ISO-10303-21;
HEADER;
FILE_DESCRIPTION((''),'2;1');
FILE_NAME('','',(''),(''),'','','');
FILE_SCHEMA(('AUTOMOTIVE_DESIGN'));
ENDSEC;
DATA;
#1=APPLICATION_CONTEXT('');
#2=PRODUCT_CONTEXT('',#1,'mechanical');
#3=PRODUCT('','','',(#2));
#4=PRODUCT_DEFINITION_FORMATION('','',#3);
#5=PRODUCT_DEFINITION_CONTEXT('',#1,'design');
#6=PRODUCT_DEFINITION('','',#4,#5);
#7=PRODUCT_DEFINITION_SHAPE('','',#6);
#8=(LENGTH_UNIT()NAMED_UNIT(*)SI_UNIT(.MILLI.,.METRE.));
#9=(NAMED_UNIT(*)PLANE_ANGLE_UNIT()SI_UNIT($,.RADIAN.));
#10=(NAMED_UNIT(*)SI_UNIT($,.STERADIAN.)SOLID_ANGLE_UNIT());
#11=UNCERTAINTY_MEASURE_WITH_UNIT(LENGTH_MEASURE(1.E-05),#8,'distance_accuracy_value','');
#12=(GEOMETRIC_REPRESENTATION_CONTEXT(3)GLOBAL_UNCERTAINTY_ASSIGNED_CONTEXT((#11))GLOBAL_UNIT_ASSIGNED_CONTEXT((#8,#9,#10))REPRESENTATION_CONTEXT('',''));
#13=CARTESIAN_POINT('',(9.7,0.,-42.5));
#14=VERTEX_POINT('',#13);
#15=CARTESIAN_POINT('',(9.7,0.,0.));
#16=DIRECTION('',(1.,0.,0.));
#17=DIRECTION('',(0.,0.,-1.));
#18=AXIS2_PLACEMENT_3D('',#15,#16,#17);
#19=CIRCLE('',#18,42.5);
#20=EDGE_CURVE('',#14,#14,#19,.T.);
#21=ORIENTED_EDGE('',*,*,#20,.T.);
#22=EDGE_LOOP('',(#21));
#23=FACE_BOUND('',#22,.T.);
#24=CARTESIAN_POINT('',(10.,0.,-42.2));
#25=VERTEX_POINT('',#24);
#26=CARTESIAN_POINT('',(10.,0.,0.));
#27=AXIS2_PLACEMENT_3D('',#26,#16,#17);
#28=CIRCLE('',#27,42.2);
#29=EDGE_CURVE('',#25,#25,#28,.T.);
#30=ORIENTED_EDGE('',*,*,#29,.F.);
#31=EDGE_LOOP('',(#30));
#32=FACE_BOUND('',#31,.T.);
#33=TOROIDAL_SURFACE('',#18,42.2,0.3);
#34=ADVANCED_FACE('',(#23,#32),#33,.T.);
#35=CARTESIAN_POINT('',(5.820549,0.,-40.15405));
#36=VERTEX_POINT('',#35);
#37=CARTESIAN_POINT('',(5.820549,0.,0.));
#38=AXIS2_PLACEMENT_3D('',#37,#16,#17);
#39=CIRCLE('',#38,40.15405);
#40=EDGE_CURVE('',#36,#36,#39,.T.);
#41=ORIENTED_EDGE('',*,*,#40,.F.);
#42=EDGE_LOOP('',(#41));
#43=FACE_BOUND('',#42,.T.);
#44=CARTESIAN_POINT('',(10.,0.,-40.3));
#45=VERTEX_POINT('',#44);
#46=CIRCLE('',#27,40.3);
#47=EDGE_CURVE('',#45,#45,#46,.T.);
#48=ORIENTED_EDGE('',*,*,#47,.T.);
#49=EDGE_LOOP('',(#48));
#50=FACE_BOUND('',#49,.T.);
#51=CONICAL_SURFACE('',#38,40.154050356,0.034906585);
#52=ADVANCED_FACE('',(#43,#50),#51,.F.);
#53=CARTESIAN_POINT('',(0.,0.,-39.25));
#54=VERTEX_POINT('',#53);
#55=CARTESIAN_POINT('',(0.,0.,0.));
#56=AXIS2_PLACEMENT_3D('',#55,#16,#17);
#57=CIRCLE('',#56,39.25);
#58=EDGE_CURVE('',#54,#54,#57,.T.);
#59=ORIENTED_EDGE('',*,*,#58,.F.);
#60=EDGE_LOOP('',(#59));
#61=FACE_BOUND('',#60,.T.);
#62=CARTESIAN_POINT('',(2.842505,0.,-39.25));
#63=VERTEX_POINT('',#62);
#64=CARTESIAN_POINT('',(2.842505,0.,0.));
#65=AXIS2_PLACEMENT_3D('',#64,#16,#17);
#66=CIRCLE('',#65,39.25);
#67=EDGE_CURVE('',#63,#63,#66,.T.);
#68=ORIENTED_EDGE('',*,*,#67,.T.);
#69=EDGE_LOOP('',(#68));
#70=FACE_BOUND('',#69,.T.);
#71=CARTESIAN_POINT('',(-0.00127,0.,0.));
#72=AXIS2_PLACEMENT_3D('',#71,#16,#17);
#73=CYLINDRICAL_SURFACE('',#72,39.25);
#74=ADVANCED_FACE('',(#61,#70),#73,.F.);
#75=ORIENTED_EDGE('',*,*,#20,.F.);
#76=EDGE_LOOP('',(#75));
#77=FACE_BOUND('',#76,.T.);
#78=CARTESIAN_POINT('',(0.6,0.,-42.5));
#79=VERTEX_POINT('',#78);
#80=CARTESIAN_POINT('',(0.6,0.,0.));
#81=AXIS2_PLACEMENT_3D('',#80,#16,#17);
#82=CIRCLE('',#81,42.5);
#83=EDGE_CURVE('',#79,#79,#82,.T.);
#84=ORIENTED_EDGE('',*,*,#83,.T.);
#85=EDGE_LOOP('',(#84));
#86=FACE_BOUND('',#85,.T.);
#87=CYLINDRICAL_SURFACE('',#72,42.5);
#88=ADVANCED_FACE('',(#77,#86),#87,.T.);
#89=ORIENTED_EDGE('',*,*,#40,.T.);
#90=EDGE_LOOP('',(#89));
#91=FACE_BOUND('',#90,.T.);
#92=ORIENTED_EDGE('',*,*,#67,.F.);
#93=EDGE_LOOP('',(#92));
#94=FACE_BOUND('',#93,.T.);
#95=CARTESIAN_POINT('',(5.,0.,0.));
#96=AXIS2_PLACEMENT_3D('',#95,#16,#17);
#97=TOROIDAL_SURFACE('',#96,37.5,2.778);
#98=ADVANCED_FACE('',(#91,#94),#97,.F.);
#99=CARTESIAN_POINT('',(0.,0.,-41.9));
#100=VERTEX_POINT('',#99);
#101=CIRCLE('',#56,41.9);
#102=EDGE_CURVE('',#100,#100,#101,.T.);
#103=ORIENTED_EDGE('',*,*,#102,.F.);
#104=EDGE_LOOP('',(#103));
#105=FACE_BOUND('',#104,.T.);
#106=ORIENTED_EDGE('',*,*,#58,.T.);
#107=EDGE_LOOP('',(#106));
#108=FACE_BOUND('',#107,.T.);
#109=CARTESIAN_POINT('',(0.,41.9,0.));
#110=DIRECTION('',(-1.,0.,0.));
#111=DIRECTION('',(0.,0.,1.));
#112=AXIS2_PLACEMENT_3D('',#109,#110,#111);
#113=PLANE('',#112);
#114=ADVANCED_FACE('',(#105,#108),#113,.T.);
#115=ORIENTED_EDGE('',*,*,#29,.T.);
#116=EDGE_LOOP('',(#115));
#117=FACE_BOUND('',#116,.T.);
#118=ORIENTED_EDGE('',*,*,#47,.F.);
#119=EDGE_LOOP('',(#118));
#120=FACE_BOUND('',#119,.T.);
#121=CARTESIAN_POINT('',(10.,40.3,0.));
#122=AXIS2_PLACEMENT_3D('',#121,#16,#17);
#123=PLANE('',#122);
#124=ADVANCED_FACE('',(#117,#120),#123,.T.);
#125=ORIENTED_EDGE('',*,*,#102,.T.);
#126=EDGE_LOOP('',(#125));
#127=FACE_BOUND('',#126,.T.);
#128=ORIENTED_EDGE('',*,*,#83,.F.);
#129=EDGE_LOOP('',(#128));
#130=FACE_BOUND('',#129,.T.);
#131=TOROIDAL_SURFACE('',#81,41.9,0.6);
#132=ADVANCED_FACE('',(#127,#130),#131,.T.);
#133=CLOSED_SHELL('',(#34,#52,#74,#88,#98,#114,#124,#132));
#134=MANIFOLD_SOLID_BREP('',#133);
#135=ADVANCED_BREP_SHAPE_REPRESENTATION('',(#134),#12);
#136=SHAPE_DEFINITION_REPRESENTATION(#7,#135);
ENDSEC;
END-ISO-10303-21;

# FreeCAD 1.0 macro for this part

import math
import FreeCAD as App
import Part
import Sketcher

V = App.Vector
Q = App.Units.Quantity

doc = App.newDocument("Part")
body = doc.addObject("PartDesign::Body", "Body")

sketch1 = body.newObject("Sketcher::SketchObject", "Sketch")
sketch1.AttachmentSupport = (doc.getObject("XY_Plane"), [""])
sketch1.MapMode = "FlatFace"
sketch1.addGeometry(Part.LineSegment(V(9.7, 42.5, 0), V(0.6, 42.5, 0)), False)
sketch1.addGeometry(Part.ArcOfCircle(Part.Circle(V(0.6, 41.9, 0), V(0, 0, 1), 0.6), math.radians(90), math.radians(180)), False)
sketch1.addGeometry(Part.LineSegment(V(0, 41.9, 0), V(0, 39.25, 0)), False)
sketch1.addGeometry(Part.LineSegment(V(0, 39.25, 0), V(2.84, 39.25, 0)), False)
sketch1.addGeometry(Part.ArcOfCircle(Part.Circle(V(5, 37.5, 0), V(0, 0, 1), 2.78), math.radians(73), math.radians(141)), False)
sketch1.addGeometry(Part.LineSegment(V(5.82, 40.15, 0), V(10, 40.3, 0)), False)
sketch1.addGeometry(Part.LineSegment(V(10, 40.3, 0), V(10, 42.2, 0)), False)
sketch1.addGeometry(Part.ArcOfCircle(Part.Circle(V(9.7, 42.2, 0), V(0, 0, 1), 0.3), math.radians(0), math.radians(90)), False)
sketch1.addConstraint(Sketcher.Constraint("Tangent", 0, 2, 1, 1))
sketch1.addConstraint(Sketcher.Constraint("Tangent", 1, 2, 2, 1))
sketch1.addConstraint(Sketcher.Constraint("Coincident", 2, 2, 3, 1))
sketch1.addConstraint(Sketcher.Constraint("Coincident", 3, 2, 4, 2))
sketch1.addConstraint(Sketcher.Constraint("Coincident", 4, 1, 5, 1))
sketch1.addConstraint(Sketcher.Constraint("Coincident", 5, 2, 6, 1))
sketch1.addConstraint(Sketcher.Constraint("Tangent", 6, 2, 7, 1))
sketch1.addConstraint(Sketcher.Constraint("Tangent", 7, 2, 0, 1))
sketch1.addConstraint(Sketcher.Constraint("Horizontal", 0))
sketch1.addConstraint(Sketcher.Constraint("Vertical", 2))
sketch1.addConstraint(Sketcher.Constraint("Horizontal", 3))
sketch1.addConstraint(Sketcher.Constraint("Vertical", 6))
sketch1.addConstraint(Sketcher.Constraint("PointOnObject", 1, 2, -2))
sketch1.addConstraint(Sketcher.Constraint("Radius", 1, Q("0.6 mm")))
sketch1.addConstraint(Sketcher.Constraint("Radius", 7, Q("0.3 mm")))
sketch1.addConstraint(Sketcher.Constraint("Angle", 5, Q("2 deg")))
sketch1.addConstraint(Sketcher.Constraint("DistanceX", 0, 2, 0, 1, Q("9.1 mm")))
sketch1.addConstraint(Sketcher.Constraint("DistanceY", 6, 1, 6, 2, Q("1.9 mm")))
sketch1.addConstraint(Sketcher.Constraint("DistanceX", -1, 1, 4, 3, Q("5 mm")))
sketch1.addConstraint(Sketcher.Constraint("Radius", 4, Q("2.778 mm")))
sketch1.addConstraint(Sketcher.Constraint("DistanceY", 4, 3, 0, 2, Q("5 mm")))
sketch1.addConstraint(Sketcher.Constraint("DistanceY", 2, 2, 2, 1, Q("2.65 mm")))
sketch1.addConstraint(Sketcher.Constraint("DistanceY", -1, 1, 1, 3, Q("41.9 mm")))
revolution = body.newObject("PartDesign::Revolution", "Revolution")
revolution.Profile = sketch1
revolution.ReferenceAxis = (sketch1, ["H_Axis"])
revolution.Angle = 360

doc.recompute()
